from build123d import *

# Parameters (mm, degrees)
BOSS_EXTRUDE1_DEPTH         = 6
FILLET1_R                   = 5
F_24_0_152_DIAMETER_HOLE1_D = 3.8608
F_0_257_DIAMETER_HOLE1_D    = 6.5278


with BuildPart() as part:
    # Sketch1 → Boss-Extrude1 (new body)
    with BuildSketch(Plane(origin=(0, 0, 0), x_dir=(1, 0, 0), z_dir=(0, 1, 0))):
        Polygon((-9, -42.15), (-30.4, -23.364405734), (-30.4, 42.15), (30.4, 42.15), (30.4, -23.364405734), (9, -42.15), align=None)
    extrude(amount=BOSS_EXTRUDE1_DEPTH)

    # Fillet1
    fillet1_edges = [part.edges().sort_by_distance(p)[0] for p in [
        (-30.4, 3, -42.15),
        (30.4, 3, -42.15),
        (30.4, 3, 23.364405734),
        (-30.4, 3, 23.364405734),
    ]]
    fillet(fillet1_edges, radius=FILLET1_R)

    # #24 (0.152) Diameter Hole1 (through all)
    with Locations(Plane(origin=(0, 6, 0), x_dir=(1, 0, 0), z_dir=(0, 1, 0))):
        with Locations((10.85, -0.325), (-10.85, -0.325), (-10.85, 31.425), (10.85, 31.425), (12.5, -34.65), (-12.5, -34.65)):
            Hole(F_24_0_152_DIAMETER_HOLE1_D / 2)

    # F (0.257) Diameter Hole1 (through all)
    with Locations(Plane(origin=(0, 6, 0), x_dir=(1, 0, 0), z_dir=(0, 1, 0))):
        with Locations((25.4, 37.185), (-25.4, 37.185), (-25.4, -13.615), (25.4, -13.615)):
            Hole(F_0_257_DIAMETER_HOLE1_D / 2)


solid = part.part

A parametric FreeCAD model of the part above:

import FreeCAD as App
import Part
import Sketcher
from FreeCAD import Vector
Q = App.Units.Quantity


def edges_at(feature, points):
    """Names of the edges that pass closest to the given points."""
    edges = feature.Shape.Edges
    near = lambda p: min(range(len(edges)), key=lambda i: edges[i].distToShape(Part.Vertex(*p))[0])
    return sorted({f"Edge{near(p) + 1}" for p in points})


def add_polygon(sketch, points):
    """Adds a closed chain of lines whose ends are joined by coincident constraints."""
    first, n = sketch.GeometryCount, len(points)
    for a, b in zip(points, points[1:] + points[:1]):
        sketch.addGeometry(Part.LineSegment(App.Vector(*a, 0), App.Vector(*b, 0)), False)
    for i in range(n):
        sketch.addConstraint(Sketcher.Constraint("Coincident", first + i, 2, first + (i + 1) % n, 1))

doc = App.newDocument("Part")
params = doc.addObject("Spreadsheet::Sheet", "Params")
for row, (alias, value) in enumerate([
    ("sketch1_width", "18 mm"),
    ("sketch1_width2", "60.8 mm"),
    ("pad1_length", "6 mm"),
    ("fillet_radius", "5 mm"),
    ("hole_diameter", "3.8608 mm"),
    ("hole2_diameter", "6.5278 mm"),
], start=1):
    params.set(f"A{row}", alias)
    params.set(f"B{row}", "=" + value)
    params.setAlias(f"B{row}", alias)

body = doc.addObject("PartDesign::Body", "Body")

sketch1 = body.newObject("Sketcher::SketchObject", "Sketch")
sketch1.AttachmentSupport = (doc.getObject("XZ_Plane"), [""])
sketch1.MapMode = "FlatFace"
add_polygon(sketch1, [(-30, 23), (-9, 42), (9, 42), (30, 23), (30, -42), (-30, -42)])
sketch1.addConstraint([
    Sketcher.Constraint("Horizontal", 1),
    Sketcher.Constraint("Vertical", 3),
    Sketcher.Constraint("Horizontal", 4),
    Sketcher.Constraint("Vertical", 5),
    Sketcher.Constraint("Symmetric", 2, 2, 5, 2, -2),
    Sketcher.Constraint("Equal", 0, 2),
    Sketcher.Constraint("DistanceX", 1, 1, 1, 2, Q("18 mm")),
    Sketcher.Constraint("DistanceX", 4, 2, 4, 1, Q("60.8 mm")),
    Sketcher.Constraint("DistanceY", 3, 2, 1, 2, Q("84.3 mm")),
    Sketcher.Constraint("DistanceY", -1, 1, 0, 2, Q("42.15 mm")),
    Sketcher.Constraint("Distance", 0, Q("28.475578 mm")),
])
sketch1.setExpression("Constraints[12]", "Params.sketch1_width")
sketch1.setExpression("Constraints[13]", "Params.sketch1_width2")
pad1 = body.newObject("PartDesign::Pad", "Pad")
pad1.Profile = sketch1
pad1.setExpression("Length", "Params.pad1_length")
pad1.Reversed = True
doc.recompute()

fillet = body.newObject("PartDesign::Fillet", "Fillet")
fillet.Base = (pad1, edges_at(pad1, [
    (-30.4, 3, -42.15),
    (30.4, 3, -42.15),
    (30.4, 3, 23.364),
    (-30.4, 3, 23.364),
]))
fillet.setExpression("Radius", "Params.fillet_radius")

sketch2 = body.newObject("Sketcher::SketchObject", "Sketch001")
sketch2.AttachmentSupport = (doc.getObject("XZ_Plane"), [""])
sketch2.MapMode = "FlatFace"
sketch2.AttachmentOffset = App.Placement(Vector(0, 0, -6), App.Rotation())
sketch2.addGeometry([
    Part.Circle(Vector(10.8, 0.3, 0), Vector(0, 0, 1), 1.9),
    Part.Circle(Vector(-10.8, 0.3, 0), Vector(0, 0, 1), 1.9),
    Part.Circle(Vector(-10.8, -31.4, 0), Vector(0, 0, 1), 1.9),
    Part.Circle(Vector(10.8, -31.4, 0), Vector(0, 0, 1), 1.9),
    Part.Circle(Vector(12.5, 34.6, 0), Vector(0, 0, 1), 1.9),
    Part.Circle(Vector(-12.5, 34.6, 0), Vector(0, 0, 1), 1.9),
], False)
sketch2.addConstraint([
    Sketcher.Constraint("Equal", 0, 1),
    Sketcher.Constraint("Equal", 1, 2),
    Sketcher.Constraint("Equal", 2, 3),
    Sketcher.Constraint("Equal", 3, 4),
    Sketcher.Constraint("Equal", 4, 5),
    Sketcher.Constraint("Symmetric", 0, 3, 1, 3, -2),
    Sketcher.Constraint("Symmetric", 2, 3, 3, 3, -2),
    Sketcher.Constraint("Symmetric", 4, 3, 5, 3, -2),
    Sketcher.Constraint("Vertical", 1, 3, 2, 3),
    Sketcher.Constraint("DistanceX", 5, 3, 4, 3, Q("25 mm")),
    Sketcher.Constraint("Diameter", 0, Q("3.8608 mm")),
    Sketcher.Constraint("DistanceX", 1, 3, 0, 3, Q("21.7 mm")),
    Sketcher.Constraint("DistanceY", -1, 1, 4, 3, Q("34.65 mm")),
    Sketcher.Constraint("DistanceY", 2, 3, 1, 3, Q("31.75 mm")),
    Sketcher.Constraint("DistanceY", -1, 1, 0, 3, Q("0.325 mm")),
])
doc.recompute()
hole = body.newObject("PartDesign::Hole", "Hole")
hole.Profile = sketch2
hole.ThreadType = "None"
hole.setExpression("Diameter", "Params.hole_diameter")
hole.DepthType = "ThroughAll"
hole.Reversed = True

sketch3 = body.newObject("Sketcher::SketchObject", "Sketch002")
sketch3.AttachmentSupport = (doc.getObject("XZ_Plane"), [""])
sketch3.MapMode = "FlatFace"
sketch3.AttachmentOffset = App.Placement(Vector(0, 0, -6), App.Rotation())
sketch3.addGeometry([
    Part.Circle(Vector(25.4, -37.2, 0), Vector(0, 0, 1), 3.3),
    Part.Circle(Vector(-25.4, -37.2, 0), Vector(0, 0, 1), 3.3),
    Part.Circle(Vector(-25.4, 13.6, 0), Vector(0, 0, 1), 3.3),
    Part.Circle(Vector(25.4, 13.6, 0), Vector(0, 0, 1), 3.3),
], False)
sketch3.addConstraint([
    Sketcher.Constraint("Equal", 0, 1),
    Sketcher.Constraint("Equal", 1, 2),
    Sketcher.Constraint("Equal", 2, 3),
    Sketcher.Constraint("Symmetric", 0, 3, 1, 3, -2),
    Sketcher.Constraint("Symmetric", 2, 3, 3, 3, -2),
    Sketcher.Constraint("Vertical", 1, 3, 2, 3),
    Sketcher.Constraint("Diameter", 0, Q("6.5278 mm")),
    Sketcher.Constraint("DistanceX", -1, 1, 0, 3, Q("25.4 mm")),
    Sketcher.Constraint("DistanceY", 1, 3, 2, 3, Q("50.8 mm")),
    Sketcher.Constraint("DistanceY", 0, 3, -1, 1, Q("37.185 mm")),
])
doc.recompute()
hole2 = body.newObject("PartDesign::Hole", "Hole001")
hole2.Profile = sketch3
hole2.ThreadType = "None"
hole2.setExpression("Diameter", "Params.hole2_diameter")
hole2.DepthType = "ThroughAll"
hole2.Reversed = True

doc.recompute()
